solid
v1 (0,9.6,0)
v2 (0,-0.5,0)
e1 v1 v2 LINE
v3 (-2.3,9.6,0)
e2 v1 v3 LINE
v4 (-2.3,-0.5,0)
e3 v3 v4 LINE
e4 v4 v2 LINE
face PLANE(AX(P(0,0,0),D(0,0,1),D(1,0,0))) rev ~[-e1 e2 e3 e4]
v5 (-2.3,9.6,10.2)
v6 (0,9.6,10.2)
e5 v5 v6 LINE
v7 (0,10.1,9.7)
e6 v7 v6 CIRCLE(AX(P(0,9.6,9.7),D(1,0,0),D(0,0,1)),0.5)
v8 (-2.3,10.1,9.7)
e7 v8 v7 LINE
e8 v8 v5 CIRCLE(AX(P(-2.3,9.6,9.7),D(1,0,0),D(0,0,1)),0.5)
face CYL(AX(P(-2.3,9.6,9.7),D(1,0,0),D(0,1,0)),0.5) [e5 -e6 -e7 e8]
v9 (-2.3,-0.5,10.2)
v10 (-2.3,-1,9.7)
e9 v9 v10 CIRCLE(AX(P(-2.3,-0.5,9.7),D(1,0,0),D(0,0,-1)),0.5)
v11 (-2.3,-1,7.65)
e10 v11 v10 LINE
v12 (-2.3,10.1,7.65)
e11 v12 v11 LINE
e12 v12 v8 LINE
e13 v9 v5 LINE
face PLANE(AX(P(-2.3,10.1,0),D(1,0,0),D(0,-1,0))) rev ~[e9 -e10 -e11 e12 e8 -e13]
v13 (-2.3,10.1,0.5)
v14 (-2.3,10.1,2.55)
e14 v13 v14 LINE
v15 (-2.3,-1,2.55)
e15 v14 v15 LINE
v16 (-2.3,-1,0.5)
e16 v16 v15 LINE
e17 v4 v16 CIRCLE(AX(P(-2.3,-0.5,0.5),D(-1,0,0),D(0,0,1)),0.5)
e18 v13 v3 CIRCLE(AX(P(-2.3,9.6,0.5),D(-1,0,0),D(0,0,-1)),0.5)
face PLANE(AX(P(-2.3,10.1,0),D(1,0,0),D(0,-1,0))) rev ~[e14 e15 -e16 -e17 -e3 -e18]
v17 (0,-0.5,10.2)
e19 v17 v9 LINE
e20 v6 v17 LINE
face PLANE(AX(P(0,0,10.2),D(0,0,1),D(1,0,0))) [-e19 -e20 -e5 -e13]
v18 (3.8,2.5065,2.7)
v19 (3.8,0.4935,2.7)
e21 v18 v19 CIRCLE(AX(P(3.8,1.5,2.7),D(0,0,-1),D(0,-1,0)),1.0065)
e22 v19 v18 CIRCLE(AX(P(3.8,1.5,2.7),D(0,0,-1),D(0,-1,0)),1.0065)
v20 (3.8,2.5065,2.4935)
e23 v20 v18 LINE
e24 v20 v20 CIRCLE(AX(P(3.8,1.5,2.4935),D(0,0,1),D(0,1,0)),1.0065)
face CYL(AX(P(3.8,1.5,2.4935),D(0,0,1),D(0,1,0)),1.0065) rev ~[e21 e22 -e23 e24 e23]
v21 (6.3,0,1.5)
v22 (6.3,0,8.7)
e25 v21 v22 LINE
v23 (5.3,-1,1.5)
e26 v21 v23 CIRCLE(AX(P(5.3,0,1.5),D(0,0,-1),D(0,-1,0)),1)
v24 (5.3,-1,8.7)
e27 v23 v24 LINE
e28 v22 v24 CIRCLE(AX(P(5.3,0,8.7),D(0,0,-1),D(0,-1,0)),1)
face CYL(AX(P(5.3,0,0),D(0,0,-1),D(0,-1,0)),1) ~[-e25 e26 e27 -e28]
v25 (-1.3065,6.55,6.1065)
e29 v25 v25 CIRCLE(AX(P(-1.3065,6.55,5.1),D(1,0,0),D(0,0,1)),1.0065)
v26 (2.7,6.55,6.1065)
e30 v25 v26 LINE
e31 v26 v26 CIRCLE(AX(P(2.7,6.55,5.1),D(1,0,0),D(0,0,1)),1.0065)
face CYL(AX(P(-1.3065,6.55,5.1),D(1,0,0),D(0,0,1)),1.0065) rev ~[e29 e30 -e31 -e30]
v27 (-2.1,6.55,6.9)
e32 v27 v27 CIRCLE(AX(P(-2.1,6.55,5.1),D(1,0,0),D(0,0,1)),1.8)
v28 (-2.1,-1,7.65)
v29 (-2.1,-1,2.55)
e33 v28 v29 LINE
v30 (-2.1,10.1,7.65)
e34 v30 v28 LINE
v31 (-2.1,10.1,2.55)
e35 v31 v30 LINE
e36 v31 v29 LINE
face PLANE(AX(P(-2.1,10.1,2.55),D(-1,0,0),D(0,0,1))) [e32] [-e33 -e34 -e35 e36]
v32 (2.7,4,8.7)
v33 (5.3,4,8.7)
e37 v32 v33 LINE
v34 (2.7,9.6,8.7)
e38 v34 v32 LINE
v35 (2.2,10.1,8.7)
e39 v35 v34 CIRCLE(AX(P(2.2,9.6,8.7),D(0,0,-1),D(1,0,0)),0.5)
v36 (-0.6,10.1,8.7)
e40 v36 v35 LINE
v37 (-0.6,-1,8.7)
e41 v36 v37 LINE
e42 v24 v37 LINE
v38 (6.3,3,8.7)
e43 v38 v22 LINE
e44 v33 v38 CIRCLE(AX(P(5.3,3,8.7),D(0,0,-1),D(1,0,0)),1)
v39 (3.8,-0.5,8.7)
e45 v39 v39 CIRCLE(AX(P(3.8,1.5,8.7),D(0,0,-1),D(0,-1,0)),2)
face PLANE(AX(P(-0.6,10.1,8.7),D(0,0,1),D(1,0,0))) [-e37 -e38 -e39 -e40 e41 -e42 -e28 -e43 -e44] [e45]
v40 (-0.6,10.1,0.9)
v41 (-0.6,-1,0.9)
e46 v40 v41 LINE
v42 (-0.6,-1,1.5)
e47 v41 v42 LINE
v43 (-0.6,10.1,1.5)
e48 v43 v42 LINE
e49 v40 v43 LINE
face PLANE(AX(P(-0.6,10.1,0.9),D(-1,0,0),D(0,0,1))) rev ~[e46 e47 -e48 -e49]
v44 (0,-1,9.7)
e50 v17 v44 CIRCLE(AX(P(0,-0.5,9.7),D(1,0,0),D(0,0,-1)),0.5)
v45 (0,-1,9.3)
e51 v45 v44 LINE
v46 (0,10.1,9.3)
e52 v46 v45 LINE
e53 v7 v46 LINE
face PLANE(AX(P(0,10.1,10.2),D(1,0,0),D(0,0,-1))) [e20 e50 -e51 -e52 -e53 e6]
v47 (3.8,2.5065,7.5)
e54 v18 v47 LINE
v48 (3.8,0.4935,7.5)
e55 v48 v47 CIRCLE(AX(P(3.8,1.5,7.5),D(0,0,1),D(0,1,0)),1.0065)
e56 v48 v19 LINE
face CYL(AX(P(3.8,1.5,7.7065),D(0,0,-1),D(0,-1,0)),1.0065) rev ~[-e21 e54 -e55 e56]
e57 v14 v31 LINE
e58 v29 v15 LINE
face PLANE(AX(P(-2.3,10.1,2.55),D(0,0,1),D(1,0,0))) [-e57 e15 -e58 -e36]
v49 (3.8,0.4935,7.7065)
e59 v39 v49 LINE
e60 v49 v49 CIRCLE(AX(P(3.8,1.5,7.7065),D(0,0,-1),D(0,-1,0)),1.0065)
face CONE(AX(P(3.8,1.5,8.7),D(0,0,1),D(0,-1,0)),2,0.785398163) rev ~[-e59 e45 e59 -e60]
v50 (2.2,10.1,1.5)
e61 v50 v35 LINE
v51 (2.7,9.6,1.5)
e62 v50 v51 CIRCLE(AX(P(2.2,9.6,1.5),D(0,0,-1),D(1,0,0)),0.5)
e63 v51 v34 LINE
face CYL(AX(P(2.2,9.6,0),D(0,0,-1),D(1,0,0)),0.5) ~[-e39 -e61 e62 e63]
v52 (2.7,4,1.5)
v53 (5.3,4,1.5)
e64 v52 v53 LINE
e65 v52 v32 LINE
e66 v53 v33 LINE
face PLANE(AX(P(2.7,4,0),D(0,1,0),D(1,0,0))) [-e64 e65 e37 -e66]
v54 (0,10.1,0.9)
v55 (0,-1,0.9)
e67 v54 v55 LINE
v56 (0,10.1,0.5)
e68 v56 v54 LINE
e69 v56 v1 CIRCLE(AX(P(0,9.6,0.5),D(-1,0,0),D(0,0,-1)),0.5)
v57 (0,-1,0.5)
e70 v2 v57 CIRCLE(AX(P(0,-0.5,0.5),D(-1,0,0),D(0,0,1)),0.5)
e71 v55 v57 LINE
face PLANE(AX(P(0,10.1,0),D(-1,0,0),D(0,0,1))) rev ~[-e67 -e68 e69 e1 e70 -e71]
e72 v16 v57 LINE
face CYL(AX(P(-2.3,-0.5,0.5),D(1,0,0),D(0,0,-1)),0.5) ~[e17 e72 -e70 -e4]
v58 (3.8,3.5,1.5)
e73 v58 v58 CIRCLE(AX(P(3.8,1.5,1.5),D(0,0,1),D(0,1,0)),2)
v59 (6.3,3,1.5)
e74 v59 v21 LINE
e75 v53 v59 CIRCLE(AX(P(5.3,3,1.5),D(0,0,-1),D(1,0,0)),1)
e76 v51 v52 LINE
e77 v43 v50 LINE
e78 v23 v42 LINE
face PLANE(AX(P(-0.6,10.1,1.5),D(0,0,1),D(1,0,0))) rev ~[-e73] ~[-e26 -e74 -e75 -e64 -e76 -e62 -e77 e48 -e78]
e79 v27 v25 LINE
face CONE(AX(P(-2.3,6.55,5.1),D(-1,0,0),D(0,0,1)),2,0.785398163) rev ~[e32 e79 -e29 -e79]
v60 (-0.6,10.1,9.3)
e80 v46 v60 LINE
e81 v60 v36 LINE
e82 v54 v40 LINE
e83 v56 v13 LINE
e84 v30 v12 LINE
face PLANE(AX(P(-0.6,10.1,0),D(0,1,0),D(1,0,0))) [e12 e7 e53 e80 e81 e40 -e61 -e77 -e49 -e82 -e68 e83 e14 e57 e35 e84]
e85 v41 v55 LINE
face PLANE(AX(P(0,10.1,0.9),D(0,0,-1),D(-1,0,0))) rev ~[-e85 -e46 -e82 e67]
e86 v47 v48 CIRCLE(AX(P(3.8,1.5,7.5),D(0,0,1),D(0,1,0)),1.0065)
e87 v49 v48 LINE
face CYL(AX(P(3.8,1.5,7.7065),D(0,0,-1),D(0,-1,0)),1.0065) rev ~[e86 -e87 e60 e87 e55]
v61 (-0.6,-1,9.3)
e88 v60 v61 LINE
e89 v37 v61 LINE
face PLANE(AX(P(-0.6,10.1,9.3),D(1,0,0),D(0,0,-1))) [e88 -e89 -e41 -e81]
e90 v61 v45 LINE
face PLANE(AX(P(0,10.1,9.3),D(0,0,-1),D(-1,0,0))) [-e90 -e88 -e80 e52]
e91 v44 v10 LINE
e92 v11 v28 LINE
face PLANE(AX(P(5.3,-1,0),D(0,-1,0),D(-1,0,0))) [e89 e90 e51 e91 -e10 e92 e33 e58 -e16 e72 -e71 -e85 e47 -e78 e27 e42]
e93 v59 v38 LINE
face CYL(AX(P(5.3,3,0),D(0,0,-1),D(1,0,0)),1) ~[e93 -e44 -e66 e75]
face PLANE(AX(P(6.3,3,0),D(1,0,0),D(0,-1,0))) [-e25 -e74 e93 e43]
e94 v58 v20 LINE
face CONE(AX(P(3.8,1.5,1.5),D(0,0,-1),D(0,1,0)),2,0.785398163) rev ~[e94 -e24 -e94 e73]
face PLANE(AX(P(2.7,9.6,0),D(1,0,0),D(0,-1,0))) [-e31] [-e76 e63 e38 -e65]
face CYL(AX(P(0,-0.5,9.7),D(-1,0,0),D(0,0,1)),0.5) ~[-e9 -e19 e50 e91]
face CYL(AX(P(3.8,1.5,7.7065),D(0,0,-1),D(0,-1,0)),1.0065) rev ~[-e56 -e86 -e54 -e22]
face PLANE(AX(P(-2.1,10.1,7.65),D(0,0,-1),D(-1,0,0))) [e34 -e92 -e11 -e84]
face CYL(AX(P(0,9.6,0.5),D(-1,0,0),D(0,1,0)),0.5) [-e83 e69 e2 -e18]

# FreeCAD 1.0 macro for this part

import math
import FreeCAD as App
import Part
import Sketcher


def edges_at(feature, points):
    """Names of the edges that pass closest to the given points."""
    edges = feature.Shape.Edges
    near = lambda p: min(range(len(edges)), key=lambda i: edges[i].distToShape(Part.Vertex(*p))[0])
    return sorted({f"Edge{near(p) + 1}" for p in points})


def add_polygon(sketch, points):
    """Adds a closed chain of lines whose ends are joined by coincident constraints."""
    first, n = sketch.GeometryCount, len(points)
    for a, b in zip(points, points[1:] + points[:1]):
        sketch.addGeometry(Part.LineSegment(App.Vector(*a, 0), App.Vector(*b, 0)), False)
    for i in range(n):
        sketch.addConstraint(Sketcher.Constraint("Coincident", first + i, 2, first + (i + 1) % n, 1))

doc = App.newDocument("Part")
body = doc.addObject("PartDesign::Body", "Body")

# Sketch on XY plane
sketch1 = body.newObject("Sketcher::SketchObject", "Sketch")
sketch1.AttachmentSupport = (doc.getObject("XY_Plane"), [""])
sketch1.MapMode = "FlatFace"
sketch1.addGeometry([
    Part.LineSegment(App.Vector(2.7, 4, 0), App.Vector(2.7, 9.6, 0)),  # 0
    Part.ArcOfCircle(Part.Circle(App.Vector(2.2, 9.6, 0), App.Vector(0, 0, 1), 0.5), math.radians(0), math.radians(90)),  # 1
    Part.LineSegment(App.Vector(2.2, 10.1, 0), App.Vector(-2.3, 10.1, 0)),  # 2
    Part.LineSegment(App.Vector(-2.3, 10.1, 0), App.Vector(-2.3, -1, 0)),  # 3
    Part.LineSegment(App.Vector(-2.3, -1, 0), App.Vector(5.3, -1, 0)),  # 4
    Part.ArcOfCircle(Part.Circle(App.Vector(5.3, 0, 0), App.Vector(0, 0, 1), 1), math.radians(-90), math.radians(0)),  # 5
    Part.LineSegment(App.Vector(6.3, 0, 0), App.Vector(6.3, 3, 0)),  # 6
    Part.ArcOfCircle(Part.Circle(App.Vector(5.3, 3, 0), App.Vector(0, 0, 1), 1), math.radians(0), math.radians(90)),  # 7
    Part.LineSegment(App.Vector(5.3, 4, 0), App.Vector(2.7, 4, 0)),  # 8
], False)
sketch1.addConstraint([
    Sketcher.Constraint("Tangent", 0, 2, 1, 1),
    Sketcher.Constraint("Tangent", 1, 2, 2, 1),
    Sketcher.Constraint("Coincident", 2, 2, 3, 1),
    Sketcher.Constraint("Coincident", 3, 2, 4, 1),
    Sketcher.Constraint("Tangent", 4, 2, 5, 1),
    Sketcher.Constraint("Tangent", 5, 2, 6, 1),
    Sketcher.Constraint("Tangent", 6, 2, 7, 1),
    Sketcher.Constraint("Tangent", 7, 2, 8, 1),
    Sketcher.Constraint("Coincident", 8, 2, 0, 1),
    Sketcher.Constraint("Vertical", 0),
    Sketcher.Constraint("Horizontal", 2),
    Sketcher.Constraint("Vertical", 3),
    Sketcher.Constraint("Horizontal", 4),
    Sketcher.Constraint("Vertical", 6),
    Sketcher.Constraint("Horizontal", 8),
    Sketcher.Constraint("Equal", 5, 7),
    Sketcher.Constraint("PointOnObject", 5, 3, -1),
    Sketcher.Constraint("Radius", 5, 1.0),
    Sketcher.Constraint("Radius", 1, 0.5),
    Sketcher.Constraint("DistanceY", 6, 1, 6, 2, 3.0),
    Sketcher.Constraint("DistanceX", 2, 2, 2, 1, 4.5),
    Sketcher.Constraint("DistanceX", 4, 1, 4, 2, 7.6),
    Sketcher.Constraint("DistanceY", 0, 1, 0, 2, 5.6),
    Sketcher.Constraint("DistanceX", -1, 1, 1, 3, 2.2),
])
pad1 = body.newObject("PartDesign::Pad", "Pad")
pad1.Profile = sketch1
pad1.Length = 10.2

# Sketch on XZ plane
sketch2 = body.newObject("Sketcher::SketchObject", "Sketch001")
sketch2.AttachmentSupport = (doc.getObject("XZ_Plane"), [""])
sketch2.MapMode = "FlatFace"
sketch2.AttachmentOffset = App.Placement(App.Vector(0, 0, -10.1), App.Rotation())
add_polygon(sketch2, [(0, 9.3), (0, 10.2), (6.3, 10.2), (6.3, 8.7), (-0.6, 8.7), (-0.6, 9.3)])  # lines 0-5
add_polygon(sketch2, [(-0.6, 1.5), (6.3, 1.5), (6.3, 0), (0, 0), (0, 0.9), (-0.6, 0.9)])  # lines 6-11
sketch2.addConstraint([
    Sketcher.Constraint("Vertical", 0),
    Sketcher.Constraint("Horizontal", 1),
    Sketcher.Constraint("Vertical", 2),
    Sketcher.Constraint("Horizontal", 3),
    Sketcher.Constraint("Vertical", 4),
    Sketcher.Constraint("Horizontal", 5),
    Sketcher.Constraint("Horizontal", 6),
    Sketcher.Constraint("Vertical", 7),
    Sketcher.Constraint("Horizontal", 8),
    Sketcher.Constraint("Vertical", 9),
    Sketcher.Constraint("Horizontal", 10),
    Sketcher.Constraint("Vertical", 11),
    Sketcher.Constraint("Coincident", 8, 2, -1, 1),
    Sketcher.Constraint("PointOnObject", 0, 2, -2),
    Sketcher.Constraint("Vertical", 2, 2, 6, 2),
    Sketcher.Constraint("Vertical", 4, 2, 10, 2),
    Sketcher.Constraint("Equal", 10, 4),
    Sketcher.Constraint("Equal", 2, 7),
    Sketcher.Constraint("Equal", 0, 9),
    Sketcher.Constraint("DistanceX", 5, 1, 5, 2, 0.6),
    Sketcher.Constraint("DistanceY", 0, 1, 0, 2, 0.9),
    Sketcher.Constraint("DistanceX", 1, 1, 1, 2, 6.3),
    Sketcher.Constraint("DistanceY", -1, 1, 0, 2, 10.2),
])
pocket1 = body.newObject("PartDesign::Pocket", "Pocket")
pocket1.Profile = sketch2
pocket1.Length = 12
pocket1.Reversed = True

# Sketch on YZ plane
sketch3 = body.newObject("Sketcher::SketchObject", "Sketch002")
sketch3.AttachmentSupport = (doc.getObject("YZ_Plane"), [""])
sketch3.MapMode = "FlatFace"
sketch3.AttachmentOffset = App.Placement(App.Vector(0, 0, -2.3), App.Rotation())
sketch3.addGeometry(Part.Circle(App.Vector(6.55, 5.1, 0), App.Vector(0, 0, 1), 1.0065), False)
sketch3.addConstraint([
    Sketcher.Constraint("Diameter", 0, 2.013),
    Sketcher.Constraint("DistanceY", -1, 1, 0, 3, 5.1),
    Sketcher.Constraint("DistanceX", -1, 1, 0, 3, 6.55),
])
doc.recompute()
hole = body.newObject("PartDesign::Hole", "Hole")
hole.Profile = sketch3
hole.ThreadType = "None"
hole.Diameter = 2.013
hole.DepthType = "ThroughAll"
hole.HoleCutType = "Countersink"
hole.HoleCutDiameter = 4
hole.HoleCutCountersinkAngle = 90
hole.Reversed = True

# Sketch on XY plane
sketch4 = body.newObject("Sketcher::SketchObject", "Sketch003")
sketch4.AttachmentSupport = (doc.getObject("XY_Plane"), [""])
sketch4.MapMode = "FlatFace"
sketch4.AttachmentOffset = App.Placement(App.Vector(0, 0, 8.7), App.Rotation())
sketch4.addGeometry(Part.Circle(App.Vector(3.8, 1.5, 0), App.Vector(0, 0, 1), 1.0065), False)
sketch4.addConstraint([
    Sketcher.Constraint("Diameter", 0, 2.013),
    Sketcher.Constraint("DistanceX", -1, 1, 0, 3, 3.8),
    Sketcher.Constraint("DistanceY", -1, 1, 0, 3, 1.5),
])
doc.recompute()
hole2 = body.newObject("PartDesign::Hole", "Hole001")
hole2.Profile = sketch4
hole2.ThreadType = "None"
hole2.Diameter = 2.013
hole2.DepthType = "Dimension"
hole2.Depth = 6
hole2.DrillPoint = "Angled"
hole2.DrillPointAngle = 118
hole2.HoleCutType = "Countersink"
hole2.HoleCutDiameter = 4
hole2.HoleCutCountersinkAngle = 90

# Sketch on XY plane
sketch5 = body.newObject("Sketcher::SketchObject", "Sketch004")
sketch5.AttachmentSupport = (doc.getObject("XY_Plane"), [""])
sketch5.MapMode = "FlatFace"
sketch5.AttachmentOffset = App.Placement(App.Vector(0, 0, 1.5), App.Rotation())
sketch5.addGeometry(Part.Circle(App.Vector(3.8, 1.5, 0), App.Vector(0, 0, 1), 1.0065), False)
sketch5.addConstraint([
    Sketcher.Constraint("Diameter", 0, 2.013),
    Sketcher.Constraint("DistanceX", -1, 1, 0, 3, 3.8),
    Sketcher.Constraint("DistanceY", -1, 1, 0, 3, 1.5),
])
doc.recompute()
hole3 = body.newObject("PartDesign::Hole", "Hole002")
hole3.Profile = sketch5
hole3.ThreadType = "None"
hole3.Diameter = 2.013
hole3.DepthType = "Dimension"
hole3.Depth = 6
hole3.DrillPoint = "Angled"
hole3.DrillPointAngle = 118
hole3.HoleCutType = "Countersink"
hole3.HoleCutDiameter = 4
hole3.HoleCutCountersinkAngle = 90
hole3.Reversed = True

# Sketch on XZ plane
sketch6 = body.newObject("Sketcher::SketchObject", "Sketch005")
sketch6.AttachmentSupport = (doc.getObject("XZ_Plane"), [""])
sketch6.MapMode = "FlatFace"
sketch6.AttachmentOffset = App.Placement(App.Vector(0, 0, -10.1), App.Rotation())
add_polygon(sketch6, [(-2.1, 2.55), (-2.3, 2.55), (-2.3, 7.65), (-2.1, 7.65)])  # lines 0-3
sketch6.addConstraint([
    Sketcher.Constraint("Horizontal", 0),
    Sketcher.Constraint("Vertical", 1),
    Sketcher.Constraint("Horizontal", 2),
    Sketcher.Constraint("Vertical", 3),
    Sketcher.Constraint("DistanceX", 0, 2, 0, 1, 0.2),
    Sketcher.Constraint("DistanceY", -1, 1, 0, 2, 2.55),
    Sketcher.Constraint("DistanceY", 1, 1, 1, 2, 5.1),
    Sketcher.Constraint("DistanceX", 0, 2, -1, 1, 2.3),
])
pocket2 = body.newObject("PartDesign::Pocket", "Pocket001")
pocket2.Profile = sketch6
pocket2.Length = 12
pocket2.Reversed = True
doc.recompute()

fillet = body.newObject("PartDesign::Fillet", "Fillet")
fillet.Base = (pocket2, edges_at(pocket2, [(-1.15, 10.1, 10.2)]))
fillet.Radius = 0.5
doc.recompute()

fillet2 = body.newObject("PartDesign::Fillet", "Fillet001")
fillet2.Base = (fillet, edges_at(fillet, [(-1.15, 10.1, 0), (-1.15, -1, 0), (-1.15, -1, 10.2)]))
fillet2.Radius = 0.5

doc.recompute()
